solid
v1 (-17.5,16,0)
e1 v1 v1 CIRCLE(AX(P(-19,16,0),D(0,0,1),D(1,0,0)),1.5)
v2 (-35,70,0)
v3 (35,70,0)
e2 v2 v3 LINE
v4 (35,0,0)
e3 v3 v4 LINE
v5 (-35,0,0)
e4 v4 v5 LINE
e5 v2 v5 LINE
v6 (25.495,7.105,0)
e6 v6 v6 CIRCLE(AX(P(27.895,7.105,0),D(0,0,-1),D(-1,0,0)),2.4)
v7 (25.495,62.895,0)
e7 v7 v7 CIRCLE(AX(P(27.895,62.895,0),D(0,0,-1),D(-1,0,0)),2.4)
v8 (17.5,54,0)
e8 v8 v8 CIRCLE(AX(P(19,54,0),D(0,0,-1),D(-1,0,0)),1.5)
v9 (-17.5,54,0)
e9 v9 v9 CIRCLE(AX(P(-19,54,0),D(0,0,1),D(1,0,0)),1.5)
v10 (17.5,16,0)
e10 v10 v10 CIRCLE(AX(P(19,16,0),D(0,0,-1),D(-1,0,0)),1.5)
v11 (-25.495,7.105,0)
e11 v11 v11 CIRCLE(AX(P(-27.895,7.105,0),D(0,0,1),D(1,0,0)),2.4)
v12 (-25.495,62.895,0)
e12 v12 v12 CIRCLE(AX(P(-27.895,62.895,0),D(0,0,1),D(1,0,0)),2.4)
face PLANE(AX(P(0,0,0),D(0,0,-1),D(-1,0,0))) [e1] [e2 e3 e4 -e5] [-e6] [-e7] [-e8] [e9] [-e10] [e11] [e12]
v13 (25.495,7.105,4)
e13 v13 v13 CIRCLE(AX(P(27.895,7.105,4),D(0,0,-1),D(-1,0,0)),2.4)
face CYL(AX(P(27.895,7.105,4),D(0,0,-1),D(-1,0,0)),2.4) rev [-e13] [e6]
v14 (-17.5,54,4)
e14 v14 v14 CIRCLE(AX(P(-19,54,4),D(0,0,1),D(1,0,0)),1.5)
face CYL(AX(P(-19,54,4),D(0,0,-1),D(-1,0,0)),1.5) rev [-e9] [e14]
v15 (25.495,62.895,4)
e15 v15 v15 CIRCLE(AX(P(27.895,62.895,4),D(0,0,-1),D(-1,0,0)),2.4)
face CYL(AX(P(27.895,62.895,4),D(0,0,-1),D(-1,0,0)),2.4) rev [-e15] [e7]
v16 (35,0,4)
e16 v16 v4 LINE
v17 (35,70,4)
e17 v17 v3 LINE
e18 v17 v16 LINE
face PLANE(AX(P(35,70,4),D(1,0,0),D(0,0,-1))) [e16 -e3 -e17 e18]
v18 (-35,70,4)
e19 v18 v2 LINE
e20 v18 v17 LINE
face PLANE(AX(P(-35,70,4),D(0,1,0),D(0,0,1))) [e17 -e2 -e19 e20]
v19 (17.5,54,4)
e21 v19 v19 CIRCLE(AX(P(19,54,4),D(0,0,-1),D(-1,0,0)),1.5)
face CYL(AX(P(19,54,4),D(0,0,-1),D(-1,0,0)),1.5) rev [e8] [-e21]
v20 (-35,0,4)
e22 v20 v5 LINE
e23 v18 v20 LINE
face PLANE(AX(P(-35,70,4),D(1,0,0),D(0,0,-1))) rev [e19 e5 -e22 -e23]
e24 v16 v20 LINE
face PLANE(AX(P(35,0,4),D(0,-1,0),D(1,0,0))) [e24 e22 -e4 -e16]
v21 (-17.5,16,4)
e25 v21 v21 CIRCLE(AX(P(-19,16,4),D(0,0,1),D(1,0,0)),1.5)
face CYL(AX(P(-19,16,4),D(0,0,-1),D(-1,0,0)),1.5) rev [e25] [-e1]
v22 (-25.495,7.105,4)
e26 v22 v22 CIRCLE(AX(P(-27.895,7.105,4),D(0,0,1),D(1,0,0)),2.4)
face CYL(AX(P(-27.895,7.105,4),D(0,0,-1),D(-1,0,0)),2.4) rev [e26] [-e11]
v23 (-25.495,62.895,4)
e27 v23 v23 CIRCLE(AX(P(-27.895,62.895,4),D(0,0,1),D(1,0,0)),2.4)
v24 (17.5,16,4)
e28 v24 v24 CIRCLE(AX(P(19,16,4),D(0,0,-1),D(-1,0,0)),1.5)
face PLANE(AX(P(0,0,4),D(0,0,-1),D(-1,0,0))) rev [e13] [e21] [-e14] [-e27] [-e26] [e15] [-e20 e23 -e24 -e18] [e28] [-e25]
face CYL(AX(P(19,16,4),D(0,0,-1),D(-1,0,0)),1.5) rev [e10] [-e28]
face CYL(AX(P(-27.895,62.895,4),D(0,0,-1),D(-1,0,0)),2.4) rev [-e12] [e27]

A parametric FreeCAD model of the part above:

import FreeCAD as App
import Part
import Sketcher
from FreeCAD import Vector
Q = App.Units.Quantity


def add_polygon(sketch, points):
    """Adds a closed chain of lines whose ends are joined by coincident constraints."""
    first, n = sketch.GeometryCount, len(points)
    for a, b in zip(points, points[1:] + points[:1]):
        sketch.addGeometry(Part.LineSegment(App.Vector(*a, 0), App.Vector(*b, 0)), False)
    for i in range(n):
        sketch.addConstraint(Sketcher.Constraint("Coincident", first + i, 2, first + (i + 1) % n, 1))

doc = App.newDocument("Part")
params = doc.addObject("Spreadsheet::Sheet", "Params")
for row, (alias, value) in enumerate([
    ("sketch1_diameter", "3 mm"),
    ("sketch1_diameter2", "4.8 mm"),
    ("sketch1_width", "70 mm"),
    ("pad1_length", "4 mm"),
], start=1):
    params.set(f"A{row}", alias)
    params.set(f"B{row}", "=" + value)
    params.setAlias(f"B{row}", alias)

body = doc.addObject("PartDesign::Body", "Body")

sketch1 = doc.addObject("Sketcher::SketchObject", "Sketch")
body.addObject(sketch1)
sketch1.AttachmentSupport = (doc.XY_Plane, [""])
sketch1.MapMode = "FlatFace"
add_polygon(sketch1, [(-35, 70), (-35, 0), (35, 0), (35, 70)])
sketch1.addGeometry(Part.Circle(Vector(-27.895, 7.105, 0), Vector(0, 0, 1), 2.4), False)
sketch1.addGeometry(Part.Circle(Vector(-19, 16, 0), Vector(0, 0, 1), 1.5), False)
sketch1.addGeometry(Part.Circle(Vector(27.895, 7.105, 0), Vector(0, 0, 1), 2.4), False)
sketch1.addGeometry(Part.Circle(Vector(19, 16, 0), Vector(0, 0, 1), 1.5), False)
sketch1.addGeometry(Part.Circle(Vector(-19, 54, 0), Vector(0, 0, 1), 1.5), False)
sketch1.addGeometry(Part.Circle(Vector(-27.895, 62.895, 0), Vector(0, 0, 1), 2.4), False)
sketch1.addGeometry(Part.Circle(Vector(19, 54, 0), Vector(0, 0, 1), 1.5), False)
sketch1.addGeometry(Part.Circle(Vector(27.895, 62.895, 0), Vector(0, 0, 1), 2.4), False)
sketch1.addConstraint([
    Sketcher.Constraint("Vertical", 0),
    Sketcher.Constraint("Horizontal", 1),
    Sketcher.Constraint("Vertical", 2),
    Sketcher.Constraint("Horizontal", 3),
    Sketcher.Constraint("Equal", 4, 6),
    Sketcher.Constraint("Equal", 5, 7),
    Sketcher.Constraint("Equal", 7, 8),
    Sketcher.Constraint("Equal", 6, 9),
    Sketcher.Constraint("Equal", 8, 10),
    Sketcher.Constraint("Equal", 9, 11),
    Sketcher.Constraint("Symmetric", 0, 2, 1, 2, -1, 1),
    Sketcher.Constraint("Symmetric", 4, 3, 6, 3, -2),
    Sketcher.Constraint("Symmetric", 5, 3, 7, 3, -2),
    Sketcher.Constraint("Symmetric", 8, 3, 10, 3, -2),
    Sketcher.Constraint("Symmetric", 9, 3, 11, 3, -2),
    Sketcher.Constraint("Vertical", 5, 3, 8, 3),
    Sketcher.Constraint("Vertical", 4, 3, 9, 3),
    Sketcher.Constraint("Equal", 3, 0),
    Sketcher.Constraint("Diameter", 5, Q("3 mm")),
    Sketcher.Constraint("Diameter", 4, Q("4.8 mm")),
    Sketcher.Constraint("DistanceX", 1, 1, 1, 2, Q("70 mm")),
    Sketcher.Constraint("DistanceX", 5, 3, -1, 1, Q("19 mm")),
    Sketcher.Constraint("DistanceY", -1, 1, 5, 3, Q("16 mm")),
    Sketcher.Constraint("DistanceY", -1, 1, 8, 3, Q("54 mm")),
    Sketcher.Constraint("DistanceX", 4, 3, 6, 3, Q("55.79 mm")),
    Sketcher.Constraint("DistanceY", 4, 3, 9, 3, Q("55.79 mm")),
    Sketcher.Constraint("DistanceY", -1, 1, 4, 3, Q("7.105 mm")),
])
sketch1.setExpression("Constraints[22]", "Params.sketch1_diameter")
sketch1.setExpression("Constraints[23]", "Params.sketch1_diameter2")
sketch1.setExpression("Constraints[24]", "Params.sketch1_width")
pad1 = doc.addObject("PartDesign::Pad", "Pad")
body.addObject(pad1)
pad1.Profile = sketch1
pad1.setExpression("Length", "Params.pad1_length")

doc.recompute()
